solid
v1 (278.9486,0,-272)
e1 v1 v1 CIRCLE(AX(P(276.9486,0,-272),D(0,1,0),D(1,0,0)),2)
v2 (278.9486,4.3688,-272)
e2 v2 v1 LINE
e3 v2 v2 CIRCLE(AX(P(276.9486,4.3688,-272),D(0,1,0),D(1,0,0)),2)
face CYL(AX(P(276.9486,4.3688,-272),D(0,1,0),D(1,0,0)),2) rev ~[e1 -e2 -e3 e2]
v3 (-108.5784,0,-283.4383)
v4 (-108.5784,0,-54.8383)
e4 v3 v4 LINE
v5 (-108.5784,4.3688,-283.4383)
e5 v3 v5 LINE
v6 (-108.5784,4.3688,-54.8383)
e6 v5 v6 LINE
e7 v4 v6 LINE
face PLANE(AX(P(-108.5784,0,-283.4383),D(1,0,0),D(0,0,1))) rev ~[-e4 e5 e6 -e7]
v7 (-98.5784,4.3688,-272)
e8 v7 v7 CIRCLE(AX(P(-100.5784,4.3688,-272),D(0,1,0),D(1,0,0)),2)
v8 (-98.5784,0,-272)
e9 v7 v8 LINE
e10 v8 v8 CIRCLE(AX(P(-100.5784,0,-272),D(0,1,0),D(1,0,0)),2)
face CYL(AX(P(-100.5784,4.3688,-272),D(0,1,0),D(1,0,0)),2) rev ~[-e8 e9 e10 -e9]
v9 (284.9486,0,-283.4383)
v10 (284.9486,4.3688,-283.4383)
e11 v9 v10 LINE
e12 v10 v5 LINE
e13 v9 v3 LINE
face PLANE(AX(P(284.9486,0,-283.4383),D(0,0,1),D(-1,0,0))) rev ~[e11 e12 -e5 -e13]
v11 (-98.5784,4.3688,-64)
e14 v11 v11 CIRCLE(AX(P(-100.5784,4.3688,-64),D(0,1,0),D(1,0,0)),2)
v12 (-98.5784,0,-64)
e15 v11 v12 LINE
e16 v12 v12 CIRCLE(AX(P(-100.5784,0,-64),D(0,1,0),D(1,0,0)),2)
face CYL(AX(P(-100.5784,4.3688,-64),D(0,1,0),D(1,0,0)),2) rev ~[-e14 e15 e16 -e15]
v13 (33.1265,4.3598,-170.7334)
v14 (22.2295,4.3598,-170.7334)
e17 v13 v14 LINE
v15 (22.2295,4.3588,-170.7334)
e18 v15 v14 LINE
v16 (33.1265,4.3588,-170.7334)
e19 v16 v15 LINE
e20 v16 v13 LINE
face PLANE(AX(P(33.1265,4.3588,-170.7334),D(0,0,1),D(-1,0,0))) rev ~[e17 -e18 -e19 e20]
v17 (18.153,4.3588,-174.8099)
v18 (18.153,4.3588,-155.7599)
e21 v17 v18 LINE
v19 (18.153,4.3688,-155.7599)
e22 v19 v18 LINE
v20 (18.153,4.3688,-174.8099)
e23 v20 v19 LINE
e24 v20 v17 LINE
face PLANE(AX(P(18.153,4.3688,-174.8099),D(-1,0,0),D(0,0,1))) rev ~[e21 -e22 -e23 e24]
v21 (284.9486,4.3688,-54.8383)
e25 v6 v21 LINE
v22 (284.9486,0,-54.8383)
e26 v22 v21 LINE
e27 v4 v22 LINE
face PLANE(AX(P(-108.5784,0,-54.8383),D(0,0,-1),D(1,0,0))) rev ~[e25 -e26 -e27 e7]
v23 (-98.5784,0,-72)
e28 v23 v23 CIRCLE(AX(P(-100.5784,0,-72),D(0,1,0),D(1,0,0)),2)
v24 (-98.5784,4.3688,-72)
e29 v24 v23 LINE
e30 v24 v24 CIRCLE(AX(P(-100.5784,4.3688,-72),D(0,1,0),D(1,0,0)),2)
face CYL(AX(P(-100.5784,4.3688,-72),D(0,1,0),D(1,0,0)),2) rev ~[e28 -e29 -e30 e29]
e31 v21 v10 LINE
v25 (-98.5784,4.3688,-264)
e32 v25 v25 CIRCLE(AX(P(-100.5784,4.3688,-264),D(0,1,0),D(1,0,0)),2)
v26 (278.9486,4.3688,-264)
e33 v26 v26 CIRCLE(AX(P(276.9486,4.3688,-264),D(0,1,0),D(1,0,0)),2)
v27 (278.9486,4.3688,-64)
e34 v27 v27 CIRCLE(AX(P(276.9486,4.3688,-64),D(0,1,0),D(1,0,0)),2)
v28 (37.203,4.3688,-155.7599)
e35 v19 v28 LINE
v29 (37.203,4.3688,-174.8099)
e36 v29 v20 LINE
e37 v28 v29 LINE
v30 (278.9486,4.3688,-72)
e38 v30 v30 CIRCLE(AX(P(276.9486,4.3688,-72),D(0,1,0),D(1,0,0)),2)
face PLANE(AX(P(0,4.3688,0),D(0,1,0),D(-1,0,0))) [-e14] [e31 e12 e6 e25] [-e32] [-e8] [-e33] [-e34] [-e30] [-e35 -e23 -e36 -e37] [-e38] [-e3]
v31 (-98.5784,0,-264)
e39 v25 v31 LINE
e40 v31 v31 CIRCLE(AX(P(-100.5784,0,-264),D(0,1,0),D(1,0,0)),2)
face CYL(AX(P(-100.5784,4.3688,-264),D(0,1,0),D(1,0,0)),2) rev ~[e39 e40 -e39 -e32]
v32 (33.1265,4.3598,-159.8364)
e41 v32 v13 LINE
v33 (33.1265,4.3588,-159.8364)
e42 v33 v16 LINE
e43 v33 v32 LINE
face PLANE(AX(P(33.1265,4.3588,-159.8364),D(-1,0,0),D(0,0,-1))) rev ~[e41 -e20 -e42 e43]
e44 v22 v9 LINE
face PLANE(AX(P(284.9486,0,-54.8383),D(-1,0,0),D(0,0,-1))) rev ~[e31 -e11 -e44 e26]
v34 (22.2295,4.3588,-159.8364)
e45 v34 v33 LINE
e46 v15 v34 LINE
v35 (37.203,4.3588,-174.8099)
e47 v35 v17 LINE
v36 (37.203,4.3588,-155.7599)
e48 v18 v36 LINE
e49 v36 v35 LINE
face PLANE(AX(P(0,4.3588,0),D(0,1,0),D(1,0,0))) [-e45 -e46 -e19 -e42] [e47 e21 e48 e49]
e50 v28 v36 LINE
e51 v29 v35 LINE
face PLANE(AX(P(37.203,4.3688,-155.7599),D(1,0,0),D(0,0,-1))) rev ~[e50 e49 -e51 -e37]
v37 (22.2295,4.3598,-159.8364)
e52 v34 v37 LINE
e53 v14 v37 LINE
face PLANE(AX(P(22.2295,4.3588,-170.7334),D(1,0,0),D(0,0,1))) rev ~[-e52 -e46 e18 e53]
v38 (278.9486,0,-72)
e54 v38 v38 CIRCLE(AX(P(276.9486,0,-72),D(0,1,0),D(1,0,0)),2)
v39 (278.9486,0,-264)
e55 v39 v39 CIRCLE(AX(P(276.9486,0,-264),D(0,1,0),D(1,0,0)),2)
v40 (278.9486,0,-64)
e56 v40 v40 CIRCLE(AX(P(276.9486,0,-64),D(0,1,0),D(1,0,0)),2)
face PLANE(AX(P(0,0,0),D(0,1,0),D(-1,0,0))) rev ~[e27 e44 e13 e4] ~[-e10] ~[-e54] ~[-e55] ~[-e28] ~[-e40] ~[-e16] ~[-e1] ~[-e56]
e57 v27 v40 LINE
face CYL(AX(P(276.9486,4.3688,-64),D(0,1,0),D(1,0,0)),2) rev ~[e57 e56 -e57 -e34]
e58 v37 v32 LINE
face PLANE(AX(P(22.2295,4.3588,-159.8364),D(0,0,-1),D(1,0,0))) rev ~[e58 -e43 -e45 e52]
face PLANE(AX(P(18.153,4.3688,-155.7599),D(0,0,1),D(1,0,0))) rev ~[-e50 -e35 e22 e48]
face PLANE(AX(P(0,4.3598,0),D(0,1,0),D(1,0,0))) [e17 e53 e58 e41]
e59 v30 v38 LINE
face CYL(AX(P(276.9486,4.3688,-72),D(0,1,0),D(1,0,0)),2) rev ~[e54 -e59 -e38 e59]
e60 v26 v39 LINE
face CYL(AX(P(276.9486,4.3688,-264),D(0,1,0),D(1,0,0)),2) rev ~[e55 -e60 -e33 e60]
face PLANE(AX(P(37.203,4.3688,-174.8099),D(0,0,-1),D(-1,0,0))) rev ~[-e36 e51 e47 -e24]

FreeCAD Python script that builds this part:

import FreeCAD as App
import Part
import Sketcher

V = App.Vector
Q = App.Units.Quantity

doc = App.newDocument("Part")
params = doc.addObject("Spreadsheet::Sheet", "Params")
for row, (alias, value) in enumerate([
    ("sketch1_height", "9 in"),
    ("pad1_length", "0.172 in"),
    ("pocket1_length", "0.172 in"),
    ("sketch3_width", "0.75 in"),
    ("pocket2_length", "0.0003937 in"),
    ("pad2_length", "0.001 mm"),
], start=1):
    params.set(f"A{row}", alias)
    params.set(f"B{row}", "=" + value)
    params.setAlias(f"B{row}", alias)

body = doc.addObject("PartDesign::Body", "Body")

# Sketch on XZ plane
sketch1 = body.newObject("Sketcher::SketchObject", "Sketch")
sketch1.AttachmentSupport = (doc.getObject("XZ_Plane"), [""])
sketch1.MapMode = "FlatFace"
sketch1.addGeometry([
    Part.LineSegment(V(-109, -283, 0), V(-109, -55, 0)),
    Part.LineSegment(V(-109, -55, 0), V(285, -55, 0)),
    Part.LineSegment(V(285, -55, 0), V(285, -283, 0)),
    Part.LineSegment(V(285, -283, 0), V(-109, -283, 0)),
], False)
sketch1.addConstraint([
    Sketcher.Constraint("Coincident", 0, 2, 1, 1),
    Sketcher.Constraint("Coincident", 1, 2, 2, 1),
    Sketcher.Constraint("Coincident", 2, 2, 3, 1),
    Sketcher.Constraint("Coincident", 3, 2, 0, 1),
    Sketcher.Constraint("Vertical", 0),
    Sketcher.Constraint("Horizontal", 1),
    Sketcher.Constraint("Vertical", 2),
    Sketcher.Constraint("Horizontal", 3),
    Sketcher.Constraint("DistanceY", 0, 1, 0, 2, Q("9 in")),
    Sketcher.Constraint("DistanceX", 1, 1, 1, 2, Q("15.4932 in")),
    Sketcher.Constraint("DistanceY", 0, 2, -1, 1, Q("2.159 in")),
    Sketcher.Constraint("DistanceX", 0, 2, -1, 1, 108.5784),
])
sketch1.setExpression("Constraints[8]", "Params.sketch1_height")
pad1 = body.newObject("PartDesign::Pad", "Pad")
pad1.Profile = sketch1
pad1.setExpression("Length", "Params.pad1_length")
pad1.Reversed = True

# Sketch on XZ plane
sketch2 = body.newObject("Sketcher::SketchObject", "Sketch001")
sketch2.AttachmentSupport = (doc.getObject("XZ_Plane"), [""])
sketch2.MapMode = "FlatFace"
sketch2.AttachmentOffset = App.Placement(V(0, 0, -0.172 * 25.4), App.Rotation())
sketch2.addGeometry([
    Part.Circle(V(276.9, -64, 0), V(0, 0, 1), 2),  # 0
    Part.Circle(V(276.9, -72, 0), V(0, 0, 1), 2),  # 1
    Part.Circle(V(276.9, -264, 0), V(0, 0, 1), 2),  # 2
    Part.Circle(V(276.9, -272, 0), V(0, 0, 1), 2),  # 3
    Part.Circle(V(-100.6, -264, 0), V(0, 0, 1), 2),  # 4
    Part.Circle(V(-100.6, -72, 0), V(0, 0, 1), 2),  # 5
    Part.Circle(V(-100.6, -64, 0), V(0, 0, 1), 2),  # 6
    Part.Circle(V(-100.6, -272, 0), V(0, 0, 1), 2),  # 7
], False)
sketch2.addConstraint([
    Sketcher.Constraint("Equal", 0, 1),
    Sketcher.Constraint("Equal", 1, 2),
    Sketcher.Constraint("Equal", 2, 3),
    Sketcher.Constraint("Equal", 3, 4),
    Sketcher.Constraint("Equal", 4, 5),
    Sketcher.Constraint("Equal", 5, 6),
    Sketcher.Constraint("Equal", 6, 7),
    Sketcher.Constraint("Horizontal", 2, 3, 4, 3),
    Sketcher.Constraint("Horizontal", 1, 3, 5, 3),
    Sketcher.Constraint("Horizontal", 0, 3, 6, 3),
    Sketcher.Constraint("Horizontal", 3, 3, 7, 3),
    Sketcher.Constraint("Vertical", 0, 3, 1, 3),
    Sketcher.Constraint("Vertical", 1, 3, 2, 3),
    Sketcher.Constraint("Vertical", 2, 3, 3, 3),
    Sketcher.Constraint("Vertical", 4, 3, 5, 3),
    Sketcher.Constraint("Vertical", 5, 3, 6, 3),
    Sketcher.Constraint("Vertical", 6, 3, 7, 3),
    Sketcher.Constraint("Diameter", 0, 4.0),
    Sketcher.Constraint("DistanceY", 0, 3, -1, 1, 64.0),
    Sketcher.Constraint("DistanceY", 1, 3, -1, 1, 72.0),
    Sketcher.Constraint("DistanceY", 3, 3, 2, 3, 8.0),
    Sketcher.Constraint("DistanceX", -1, 1, 0, 3, Q("10.9035 in")),
    Sketcher.Constraint("DistanceY", 2, 3, -1, 1, Q("10.3937 in")),
    Sketcher.Constraint("DistanceX", 4, 3, -1, 1, 100.5784),
])
pocket1 = body.newObject("PartDesign::Pocket", "Pocket")
pocket1.Profile = sketch2
pocket1.setExpression("Length", "Params.pocket1_length")
pocket1.Reversed = True

# Sketch on XZ plane
sketch3 = body.newObject("Sketcher::SketchObject", "Sketch002")
sketch3.AttachmentSupport = (doc.getObject("XZ_Plane"), [""])
sketch3.MapMode = "FlatFace"
sketch3.AttachmentOffset = App.Placement(V(0, 0, -0.172 * 25.4), App.Rotation())
sketch3.addGeometry([
    Part.LineSegment(V(37, -156, 0), V(37, -175, 0)),
    Part.LineSegment(V(37, -175, 0), V(18, -175, 0)),
    Part.LineSegment(V(18, -175, 0), V(18, -156, 0)),
    Part.LineSegment(V(18, -156, 0), V(37, -156, 0)),
], False)
sketch3.addConstraint([
    Sketcher.Constraint("Coincident", 0, 2, 1, 1),
    Sketcher.Constraint("Coincident", 1, 2, 2, 1),
    Sketcher.Constraint("Coincident", 2, 2, 3, 1),
    Sketcher.Constraint("Coincident", 3, 2, 0, 1),
    Sketcher.Constraint("Vertical", 0),
    Sketcher.Constraint("Horizontal", 1),
    Sketcher.Constraint("Vertical", 2),
    Sketcher.Constraint("Horizontal", 3),
    Sketcher.Constraint("Equal", 3, 0),
    Sketcher.Constraint("DistanceX", 1, 2, 1, 1, Q("0.75 in")),
    Sketcher.Constraint("DistanceX", -1, 1, 0, 2, 37.203),
    Sketcher.Constraint("DistanceY", 0, 2, -1, 1, 174.81),
])
sketch3.setExpression("Constraints[9]", "Params.sketch3_width")
pocket2 = body.newObject("PartDesign::Pocket", "Pocket001")
pocket2.Profile = sketch3
pocket2.setExpression("Length", "Params.pocket2_length")
pocket2.Reversed = True

# Sketch on XZ plane
sketch4 = body.newObject("Sketcher::SketchObject", "Sketch003")
sketch4.AttachmentSupport = (doc.getObject("XZ_Plane"), [""])
sketch4.MapMode = "FlatFace"
sketch4.AttachmentOffset = App.Placement(V(0, 0, -0.1716063 * 25.4), App.Rotation())
sketch4.addGeometry([
    Part.LineSegment(V(22, -171, 0), V(22, -160, 0)),
    Part.LineSegment(V(22, -160, 0), V(33, -160, 0)),
    Part.LineSegment(V(33, -160, 0), V(33, -171, 0)),
    Part.LineSegment(V(33, -171, 0), V(22, -171, 0)),
], False)
sketch4.addConstraint([
    Sketcher.Constraint("Coincident", 0, 2, 1, 1),
    Sketcher.Constraint("Coincident", 1, 2, 2, 1),
    Sketcher.Constraint("Coincident", 2, 2, 3, 1),
    Sketcher.Constraint("Coincident", 3, 2, 0, 1),
    Sketcher.Constraint("Vertical", 0),
    Sketcher.Constraint("Horizontal", 1),
    Sketcher.Constraint("Vertical", 2),
    Sketcher.Constraint("Horizontal", 3),
    Sketcher.Constraint("Equal", 3, 0),
    Sketcher.Constraint("DistanceX", 1, 1, 1, 2, 10.897),
    Sketcher.Constraint("DistanceX", -1, 1, 1, 2, Q("1.3042 in")),
    Sketcher.Constraint("DistanceY", 0, 2, -1, 1, 159.8364),
])
pad2 = body.newObject("PartDesign::Pad", "Pad001")
pad2.Profile = sketch4
pad2.setExpression("Length", "Params.pad2_length")
pad2.Reversed = True

doc.recompute()
